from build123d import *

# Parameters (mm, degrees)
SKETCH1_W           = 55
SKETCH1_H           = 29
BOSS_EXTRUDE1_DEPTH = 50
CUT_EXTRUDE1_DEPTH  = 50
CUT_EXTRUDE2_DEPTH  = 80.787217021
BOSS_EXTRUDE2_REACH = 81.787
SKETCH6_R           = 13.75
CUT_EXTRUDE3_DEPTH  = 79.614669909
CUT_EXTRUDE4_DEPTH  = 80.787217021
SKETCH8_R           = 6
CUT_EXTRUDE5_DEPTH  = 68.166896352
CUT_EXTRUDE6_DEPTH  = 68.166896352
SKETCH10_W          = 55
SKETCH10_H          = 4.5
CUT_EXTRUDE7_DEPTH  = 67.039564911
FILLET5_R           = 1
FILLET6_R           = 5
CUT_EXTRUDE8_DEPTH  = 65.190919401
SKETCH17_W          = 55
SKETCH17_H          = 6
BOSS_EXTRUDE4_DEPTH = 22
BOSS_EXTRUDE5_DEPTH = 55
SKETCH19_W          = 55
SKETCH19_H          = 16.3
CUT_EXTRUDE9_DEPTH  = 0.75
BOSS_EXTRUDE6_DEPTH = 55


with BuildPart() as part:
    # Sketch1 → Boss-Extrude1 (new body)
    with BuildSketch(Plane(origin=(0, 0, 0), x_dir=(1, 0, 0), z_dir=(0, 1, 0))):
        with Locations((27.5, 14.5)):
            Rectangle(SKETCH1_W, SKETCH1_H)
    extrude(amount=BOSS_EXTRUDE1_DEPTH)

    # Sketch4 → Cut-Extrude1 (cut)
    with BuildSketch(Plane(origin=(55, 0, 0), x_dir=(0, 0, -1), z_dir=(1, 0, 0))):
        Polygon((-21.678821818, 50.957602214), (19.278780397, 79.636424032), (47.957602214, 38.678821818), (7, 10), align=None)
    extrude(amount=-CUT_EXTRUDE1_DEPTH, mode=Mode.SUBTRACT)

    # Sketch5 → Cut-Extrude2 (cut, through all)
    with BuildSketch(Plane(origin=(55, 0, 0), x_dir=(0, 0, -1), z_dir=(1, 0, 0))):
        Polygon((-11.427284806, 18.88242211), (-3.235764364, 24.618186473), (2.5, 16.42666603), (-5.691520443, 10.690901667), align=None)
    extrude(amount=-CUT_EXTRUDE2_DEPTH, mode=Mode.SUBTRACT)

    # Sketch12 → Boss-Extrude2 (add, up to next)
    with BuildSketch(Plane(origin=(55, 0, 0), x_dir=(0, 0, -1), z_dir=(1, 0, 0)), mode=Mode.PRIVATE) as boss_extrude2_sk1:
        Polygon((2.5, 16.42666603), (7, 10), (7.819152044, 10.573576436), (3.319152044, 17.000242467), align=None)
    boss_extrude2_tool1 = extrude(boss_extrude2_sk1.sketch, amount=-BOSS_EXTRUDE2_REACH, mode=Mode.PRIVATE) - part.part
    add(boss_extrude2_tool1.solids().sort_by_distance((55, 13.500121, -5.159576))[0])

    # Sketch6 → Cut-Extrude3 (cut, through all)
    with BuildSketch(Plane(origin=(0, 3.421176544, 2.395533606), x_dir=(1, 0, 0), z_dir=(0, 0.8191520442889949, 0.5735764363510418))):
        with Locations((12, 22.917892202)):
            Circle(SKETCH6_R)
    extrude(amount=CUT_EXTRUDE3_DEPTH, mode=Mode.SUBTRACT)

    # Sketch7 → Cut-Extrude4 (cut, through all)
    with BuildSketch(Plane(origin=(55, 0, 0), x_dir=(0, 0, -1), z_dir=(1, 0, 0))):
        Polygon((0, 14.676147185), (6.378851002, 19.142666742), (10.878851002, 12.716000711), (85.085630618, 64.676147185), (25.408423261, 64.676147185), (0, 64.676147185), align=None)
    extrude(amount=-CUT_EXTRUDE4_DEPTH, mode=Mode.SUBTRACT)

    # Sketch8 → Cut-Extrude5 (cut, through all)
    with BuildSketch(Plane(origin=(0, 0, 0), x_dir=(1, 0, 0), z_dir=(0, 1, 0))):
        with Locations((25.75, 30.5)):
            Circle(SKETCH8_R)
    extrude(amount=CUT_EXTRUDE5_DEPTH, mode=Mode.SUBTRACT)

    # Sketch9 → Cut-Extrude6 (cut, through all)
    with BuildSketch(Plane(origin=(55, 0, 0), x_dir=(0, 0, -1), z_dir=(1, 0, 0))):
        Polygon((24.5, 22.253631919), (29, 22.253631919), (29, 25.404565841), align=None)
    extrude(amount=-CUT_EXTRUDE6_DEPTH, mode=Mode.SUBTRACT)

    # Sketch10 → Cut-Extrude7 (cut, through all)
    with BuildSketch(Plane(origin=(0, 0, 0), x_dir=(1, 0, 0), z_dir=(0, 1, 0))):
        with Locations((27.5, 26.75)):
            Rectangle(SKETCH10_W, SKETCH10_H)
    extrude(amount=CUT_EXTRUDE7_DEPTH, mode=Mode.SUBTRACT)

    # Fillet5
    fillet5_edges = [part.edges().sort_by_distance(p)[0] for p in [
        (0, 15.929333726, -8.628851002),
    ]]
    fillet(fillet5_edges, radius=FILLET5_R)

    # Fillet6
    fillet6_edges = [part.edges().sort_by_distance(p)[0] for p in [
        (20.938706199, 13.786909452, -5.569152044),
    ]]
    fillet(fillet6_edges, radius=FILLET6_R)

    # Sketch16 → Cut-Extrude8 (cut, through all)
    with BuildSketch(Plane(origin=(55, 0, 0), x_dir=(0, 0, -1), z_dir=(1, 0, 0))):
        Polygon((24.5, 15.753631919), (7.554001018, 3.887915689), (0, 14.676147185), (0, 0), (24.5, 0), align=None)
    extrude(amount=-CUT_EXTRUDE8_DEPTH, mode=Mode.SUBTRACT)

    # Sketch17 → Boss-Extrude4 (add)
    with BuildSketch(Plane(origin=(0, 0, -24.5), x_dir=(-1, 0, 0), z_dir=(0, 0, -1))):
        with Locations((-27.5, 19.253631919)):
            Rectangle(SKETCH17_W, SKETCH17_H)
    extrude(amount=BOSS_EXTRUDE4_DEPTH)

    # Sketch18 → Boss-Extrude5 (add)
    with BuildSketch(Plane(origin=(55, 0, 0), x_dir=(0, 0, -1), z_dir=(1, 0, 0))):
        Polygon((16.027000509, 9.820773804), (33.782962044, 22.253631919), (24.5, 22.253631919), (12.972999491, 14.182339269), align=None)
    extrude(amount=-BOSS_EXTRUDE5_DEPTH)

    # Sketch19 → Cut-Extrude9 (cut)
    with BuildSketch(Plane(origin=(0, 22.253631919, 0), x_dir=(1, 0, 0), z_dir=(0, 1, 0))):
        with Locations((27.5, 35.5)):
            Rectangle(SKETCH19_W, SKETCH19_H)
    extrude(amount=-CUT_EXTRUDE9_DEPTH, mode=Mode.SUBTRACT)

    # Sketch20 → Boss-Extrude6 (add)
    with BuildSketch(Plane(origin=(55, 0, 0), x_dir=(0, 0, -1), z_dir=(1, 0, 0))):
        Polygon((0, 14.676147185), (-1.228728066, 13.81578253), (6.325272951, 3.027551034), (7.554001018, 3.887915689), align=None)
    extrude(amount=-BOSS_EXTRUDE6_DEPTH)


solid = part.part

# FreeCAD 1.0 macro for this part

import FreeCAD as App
import Part
import Sketcher
from FreeCAD import Vector
Q = App.Units.Quantity


def edges_at(feature, points):
    """Names of the edges that pass closest to the given points."""
    edges = feature.Shape.Edges
    near = lambda p: min(range(len(edges)), key=lambda i: edges[i].distToShape(Part.Vertex(*p))[0])
    return sorted({f"Edge{near(p) + 1}" for p in points})

doc = App.newDocument("Part")
body = doc.addObject("PartDesign::Body", "Body")

# Sketch on XZ plane
sketch1 = doc.addObject("Sketcher::SketchObject", "Sketch")
body.addObject(sketch1)
sketch1.AttachmentSupport = (doc.XZ_Plane, [""])
sketch1.MapMode = "FlatFace"
sketch1.addGeometry(Part.LineSegment(Vector(0, -29, 0), Vector(0, 0, 0)), False)
sketch1.addGeometry(Part.LineSegment(Vector(0, 0, 0), Vector(55, 0, 0)), False)
sketch1.addGeometry(Part.LineSegment(Vector(55, 0, 0), Vector(55, -29, 0)), False)
sketch1.addGeometry(Part.LineSegment(Vector(55, -29, 0), Vector(0, -29, 0)), False)
sketch1.addConstraint(Sketcher.Constraint("Coincident", 0, 2, 1, 1))
sketch1.addConstraint(Sketcher.Constraint("Coincident", 1, 2, 2, 1))
sketch1.addConstraint(Sketcher.Constraint("Coincident", 2, 2, 3, 1))
sketch1.addConstraint(Sketcher.Constraint("Coincident", 3, 2, 0, 1))
sketch1.addConstraint(Sketcher.Constraint("Vertical", 0))
sketch1.addConstraint(Sketcher.Constraint("Horizontal", 1))
sketch1.addConstraint(Sketcher.Constraint("Vertical", 2))
sketch1.addConstraint(Sketcher.Constraint("Horizontal", 3))
sketch1.addConstraint(Sketcher.Constraint("Coincident", 0, 2, -1, 1))
sketch1.addConstraint(Sketcher.Constraint("DistanceX", 1, 1, 1, 2, 55.0))
sketch1.addConstraint(Sketcher.Constraint("DistanceY", 0, 1, 0, 2, 29.0))
pad1 = doc.addObject("PartDesign::Pad", "Pad")
body.addObject(pad1)
pad1.Profile = sketch1
pad1.Length = 50
pad1.Reversed = True

# Sketch on YZ plane
sketch2 = doc.addObject("Sketcher::SketchObject", "Sketch001")
body.addObject(sketch2)
sketch2.AttachmentSupport = (doc.YZ_Plane, [""])
sketch2.MapMode = "FlatFace"
sketch2.AttachmentOffset = App.Placement(Vector(0, 0, 55), App.Rotation())
sketch2.addGeometry(Part.LineSegment(Vector(80, -19, 0), Vector(51, 22, 0)), False)
sketch2.addGeometry(Part.LineSegment(Vector(51, 22, 0), Vector(10, -7, 0)), False)
sketch2.addGeometry(Part.LineSegment(Vector(10, -7, 0), Vector(39, -48, 0)), False)
sketch2.addGeometry(Part.LineSegment(Vector(39, -48, 0), Vector(80, -19, 0)), False)
sketch2.addConstraint(Sketcher.Constraint("Coincident", 0, 2, 1, 1))
sketch2.addConstraint(Sketcher.Constraint("Coincident", 1, 2, 2, 1))
sketch2.addConstraint(Sketcher.Constraint("Coincident", 2, 2, 3, 1))
sketch2.addConstraint(Sketcher.Constraint("Coincident", 3, 2, 0, 1))
sketch2.addConstraint(Sketcher.Constraint("Perpendicular", 0, 1))
sketch2.addConstraint(Sketcher.Constraint("Perpendicular", 1, 2))
sketch2.addConstraint(Sketcher.Constraint("Perpendicular", 2, 3))
sketch2.addConstraint(Sketcher.Constraint("Equal", 0, 1))
sketch2.addConstraint(Sketcher.Constraint("Angle", 0, Q("125 deg")))
sketch2.addConstraint(Sketcher.Constraint("Distance", 0, 50.0))
sketch2.addConstraint(Sketcher.Constraint("DistanceX", -1, 1, 1, 2, 10.0))
sketch2.addConstraint(Sketcher.Constraint("DistanceY", 1, 2, -1, 1, 7.0))
pocket1 = doc.addObject("PartDesign::Pocket", "Pocket")
body.addObject(pocket1)
pocket1.Profile = sketch2
pocket1.Length = 50

# Sketch on YZ plane
sketch3 = doc.addObject("Sketcher::SketchObject", "Sketch002")
body.addObject(sketch3)
sketch3.AttachmentSupport = (doc.YZ_Plane, [""])
sketch3.MapMode = "FlatFace"
sketch3.AttachmentOffset = App.Placement(Vector(0, 0, 55), App.Rotation())
sketch3.addGeometry(Part.LineSegment(Vector(25, 3, 0), Vector(19, 11, 0)), False)
sketch3.addGeometry(Part.LineSegment(Vector(19, 11, 0), Vector(11, 6, 0)), False)
sketch3.addGeometry(Part.LineSegment(Vector(11, 6, 0), Vector(16, -2, 0)), False)
sketch3.addGeometry(Part.LineSegment(Vector(16, -2, 0), Vector(25, 3, 0)), False)
sketch3.addConstraint(Sketcher.Constraint("Coincident", 0, 2, 1, 1))
sketch3.addConstraint(Sketcher.Constraint("Coincident", 1, 2, 2, 1))
sketch3.addConstraint(Sketcher.Constraint("Coincident", 2, 2, 3, 1))
sketch3.addConstraint(Sketcher.Constraint("Coincident", 3, 2, 0, 1))
sketch3.addConstraint(Sketcher.Constraint("Perpendicular", 0, 1))
sketch3.addConstraint(Sketcher.Constraint("Perpendicular", 1, 2))
sketch3.addConstraint(Sketcher.Constraint("Perpendicular", 2, 3))
sketch3.addConstraint(Sketcher.Constraint("Equal", 0, 1))
sketch3.addConstraint(Sketcher.Constraint("Angle", 0, Q("125 deg")))
sketch3.addConstraint(Sketcher.Constraint("Distance", 0, 10.0))
sketch3.addConstraint(Sketcher.Constraint("DistanceY", 2, 2, -1, 1, 2.5))
sketch3.addConstraint(Sketcher.Constraint("DistanceX", -1, 1, 1, 2, 10.690902))
pocket2 = doc.addObject("PartDesign::Pocket", "Pocket001")
body.addObject(pocket2)
pocket2.Profile = sketch3
pocket2.Type = "ThroughAll"

# Sketch on YZ plane
sketch4 = doc.addObject("Sketcher::SketchObject", "Sketch003")
body.addObject(sketch4)
sketch4.AttachmentSupport = (doc.YZ_Plane, [""])
sketch4.MapMode = "FlatFace"
sketch4.AttachmentOffset = App.Placement(Vector(0, 0, 55), App.Rotation())
sketch4.addGeometry(Part.LineSegment(Vector(16.4, -2.5, 0), Vector(10, -7, 0)), False)
sketch4.addGeometry(Part.LineSegment(Vector(10, -7, 0), Vector(10.6, -7.8, 0)), False)
sketch4.addGeometry(Part.LineSegment(Vector(10.6, -7.8, 0), Vector(17, -3.3, 0)), False)
sketch4.addGeometry(Part.LineSegment(Vector(17, -3.3, 0), Vector(16.4, -2.5, 0)), False)
sketch4.addConstraint(Sketcher.Constraint("Coincident", 0, 2, 1, 1))
sketch4.addConstraint(Sketcher.Constraint("Coincident", 1, 2, 2, 1))
sketch4.addConstraint(Sketcher.Constraint("Coincident", 2, 2, 3, 1))
sketch4.addConstraint(Sketcher.Constraint("Coincident", 3, 2, 0, 1))
sketch4.addConstraint(Sketcher.Constraint("Perpendicular", 0, 1))
sketch4.addConstraint(Sketcher.Constraint("Perpendicular", 1, 2))
sketch4.addConstraint(Sketcher.Constraint("Perpendicular", 2, 3))
sketch4.addConstraint(Sketcher.Constraint("Angle", 0, Q("-145 deg")))
sketch4.addConstraint(Sketcher.Constraint("Distance", 1, 1.0))
sketch4.addConstraint(Sketcher.Constraint("DistanceX", -1, 1, 0, 2, 10.0))
sketch4.addConstraint(Sketcher.Constraint("DistanceY", 0, 2, -1, 1, 7.0))
sketch4.addConstraint(Sketcher.Constraint("DistanceY", 3, 2, -1, 1, 2.5))
pad2 = doc.addObject("PartDesign::Pad", "Pad001")
body.addObject(pad2)
pad2.Profile = sketch4
pad2.Type = "UpToFirst"
pad2.Reversed = True

# Sketch on an angled plane
sketch5 = doc.addObject("Sketcher::SketchObject", "Sketch004")
body.addObject(sketch5)
sketch5.Placement = App.Placement(Vector(0, 3.421177, 2.395534), App.Rotation(Vector(1, 0, 0), Vector(0, 0.573576436, -0.819152044), Vector(0, 0.819152044, 0.573576436), "ZXY"))
sketch5.addGeometry(Part.Circle(Vector(12, 23, 0), Vector(0, 0, 1), 14), False)
sketch5.addConstraint(Sketcher.Constraint("Diameter", 0, 27.5))
sketch5.addConstraint(Sketcher.Constraint("DistanceX", -1, 1, 0, 3, 12.0))
sketch5.addConstraint(Sketcher.Constraint("DistanceY", -1, 1, 0, 3, 22.917892))
pocket3 = doc.addObject("PartDesign::Pocket", "Pocket002")
body.addObject(pocket3)
pocket3.Profile = sketch5
pocket3.Type = "ThroughAll"
pocket3.Reversed = True

# Sketch on YZ plane
sketch6 = doc.addObject("Sketcher::SketchObject", "Sketch005")
body.addObject(sketch6)
sketch6.AttachmentSupport = (doc.YZ_Plane, [""])
sketch6.MapMode = "FlatFace"
sketch6.AttachmentOffset = App.Placement(Vector(0, 0, 55), App.Rotation())
sketch6.addGeometry(Part.LineSegment(Vector(15, 0, 0), Vector(19, -6, 0)), False)
sketch6.addGeometry(Part.LineSegment(Vector(19, -6, 0), Vector(13, -11, 0)), False)
sketch6.addGeometry(Part.LineSegment(Vector(13, -11, 0), Vector(65, -85, 0)), False)
sketch6.addGeometry(Part.LineSegment(Vector(65, -85, 0), Vector(65, 0, 0)), False)
sketch6.addGeometry(Part.LineSegment(Vector(65, 0, 0), Vector(15, 0, 0)), False)
sketch6.addConstraint(Sketcher.Constraint("Coincident", 0, 2, 1, 1))
sketch6.addConstraint(Sketcher.Constraint("Coincident", 1, 2, 2, 1))
sketch6.addConstraint(Sketcher.Constraint("Coincident", 2, 2, 3, 1))
sketch6.addConstraint(Sketcher.Constraint("Coincident", 3, 2, 4, 1))
sketch6.addConstraint(Sketcher.Constraint("Coincident", 4, 2, 0, 1))
sketch6.addConstraint(Sketcher.Constraint("Vertical", 3))
sketch6.addConstraint(Sketcher.Constraint("Horizontal", 4))
sketch6.addConstraint(Sketcher.Constraint("PointOnObject", 3, 2, -1))
sketch6.addConstraint(Sketcher.Constraint("Perpendicular", 0, 1))
sketch6.addConstraint(Sketcher.Constraint("Perpendicular", 1, 2))
sketch6.addConstraint(Sketcher.Constraint("DistanceX", 4, 2, 4, 1, 50.0))
sketch6.addConstraint(Sketcher.Constraint("Angle", 0, Q("-55 deg")))
sketch6.addConstraint(Sketcher.Constraint("DistanceY", 1, 2, 0, 2, 4.5))
sketch6.addConstraint(Sketcher.Constraint("DistanceX", -1, 1, 1, 2, 12.716001))
sketch6.addConstraint(Sketcher.Constraint("Distance", 0, 7.787139))
pocket4 = doc.addObject("PartDesign::Pocket", "Pocket003")
body.addObject(pocket4)
pocket4.Profile = sketch6
pocket4.Type = "ThroughAll"

# Sketch on XZ plane
sketch7 = doc.addObject("Sketcher::SketchObject", "Sketch006")
body.addObject(sketch7)
sketch7.AttachmentSupport = (doc.XZ_Plane, [""])
sketch7.MapMode = "FlatFace"
sketch7.addGeometry(Part.Circle(Vector(26, -30, 0), Vector(0, 0, 1), 6), False)
sketch7.addConstraint(Sketcher.Constraint("Diameter", 0, 12.0))
sketch7.addConstraint(Sketcher.Constraint("DistanceY", 0, 3, -1, 1, 30.5))
sketch7.addConstraint(Sketcher.Constraint("DistanceX", -1, 1, 0, 3, 25.75))
pocket5 = doc.addObject("PartDesign::Pocket", "Pocket004")
body.addObject(pocket5)
pocket5.Profile = sketch7
pocket5.Type = "ThroughAll"

# Sketch on YZ plane
sketch8 = doc.addObject("Sketcher::SketchObject", "Sketch007")
body.addObject(sketch8)
sketch8.AttachmentSupport = (doc.YZ_Plane, [""])
sketch8.MapMode = "FlatFace"
sketch8.AttachmentOffset = App.Placement(Vector(0, 0, 55), App.Rotation())
sketch8.addGeometry(Part.LineSegment(Vector(22.3, -24.5, 0), Vector(22.3, -29, 0)), False)
sketch8.addGeometry(Part.LineSegment(Vector(22.3, -29, 0), Vector(25.4, -29, 0)), False)
sketch8.addGeometry(Part.LineSegment(Vector(25.4, -29, 0), Vector(22.3, -24.5, 0)), False)
sketch8.addConstraint(Sketcher.Constraint("Coincident", 0, 2, 1, 1))
sketch8.addConstraint(Sketcher.Constraint("Coincident", 1, 2, 2, 1))
sketch8.addConstraint(Sketcher.Constraint("Coincident", 2, 2, 0, 1))
sketch8.addConstraint(Sketcher.Constraint("Vertical", 0))
sketch8.addConstraint(Sketcher.Constraint("Horizontal", 1))
sketch8.addConstraint(Sketcher.Constraint("Angle", 2, Q("125 deg")))
sketch8.addConstraint(Sketcher.Constraint("DistanceY", 0, 2, 0, 1, 4.5))
sketch8.addConstraint(Sketcher.Constraint("DistanceY", 0, 2, -1, 1, 29.0))
sketch8.addConstraint(Sketcher.Constraint("DistanceX", -1, 1, 0, 2, 22.253632))
pocket6 = doc.addObject("PartDesign::Pocket", "Pocket005")
body.addObject(pocket6)
pocket6.Profile = sketch8
pocket6.Type = "ThroughAll"

# Sketch on XZ plane
sketch9 = doc.addObject("Sketcher::SketchObject", "Sketch008")
body.addObject(sketch9)
sketch9.AttachmentSupport = (doc.XZ_Plane, [""])
sketch9.MapMode = "FlatFace"
sketch9.addGeometry(Part.LineSegment(Vector(0, -29, 0), Vector(0, -24.5, 0)), False)
sketch9.addGeometry(Part.LineSegment(Vector(0, -24.5, 0), Vector(55, -24.5, 0)), False)
sketch9.addGeometry(Part.LineSegment(Vector(55, -24.5, 0), Vector(55, -29, 0)), False)
sketch9.addGeometry(Part.LineSegment(Vector(55, -29, 0), Vector(0, -29, 0)), False)
sketch9.addConstraint(Sketcher.Constraint("Coincident", 0, 2, 1, 1))
sketch9.addConstraint(Sketcher.Constraint("Coincident", 1, 2, 2, 1))
sketch9.addConstraint(Sketcher.Constraint("Coincident", 2, 2, 3, 1))
sketch9.addConstraint(Sketcher.Constraint("Coincident", 3, 2, 0, 1))
sketch9.addConstraint(Sketcher.Constraint("Vertical", 0))
sketch9.addConstraint(Sketcher.Constraint("Horizontal", 1))
sketch9.addConstraint(Sketcher.Constraint("Vertical", 2))
sketch9.addConstraint(Sketcher.Constraint("Horizontal", 3))
sketch9.addConstraint(Sketcher.Constraint("PointOnObject", 0, 2, -2))
sketch9.addConstraint(Sketcher.Constraint("DistanceX", 1, 1, 1, 2, 55.0))
sketch9.addConstraint(Sketcher.Constraint("DistanceY", 0, 1, 0, 2, 4.5))
sketch9.addConstraint(Sketcher.Constraint("DistanceY", 2, 2, -1, 1, 29.0))
pocket7 = doc.addObject("PartDesign::Pocket", "Pocket006")
body.addObject(pocket7)
pocket7.Profile = sketch9
pocket7.Type = "ThroughAll"
doc.recompute()

fillet = doc.addObject("PartDesign::Fillet", "Fillet")
body.addObject(fillet)
fillet.Base = (pocket7, edges_at(pocket7, [(0, 15.929, -8.629)]))
fillet.Radius = 1
doc.recompute()

fillet2 = doc.addObject("PartDesign::Fillet", "Fillet001")
body.addObject(fillet2)
fillet2.Base = (fillet, edges_at(fillet, [(20.939, 13.787, -5.569)]))
fillet2.Radius = 5

# Sketch on YZ plane
sketch10 = doc.addObject("Sketcher::SketchObject", "Sketch009")
body.addObject(sketch10)
sketch10.AttachmentSupport = (doc.YZ_Plane, [""])
sketch10.MapMode = "FlatFace"
sketch10.AttachmentOffset = App.Placement(Vector(0, 0, 55), App.Rotation())
sketch10.addGeometry(Part.LineSegment(Vector(16, -24, 0), Vector(4, -8, 0)), False)
sketch10.addGeometry(Part.LineSegment(Vector(4, -8, 0), Vector(15, 0, 0)), False)
sketch10.addGeometry(Part.LineSegment(Vector(15, 0, 0), Vector(0, 0, 0)), False)
sketch10.addGeometry(Part.LineSegment(Vector(0, 0, 0), Vector(0, -24, 0)), False)
sketch10.addGeometry(Part.LineSegment(Vector(0, -24, 0), Vector(16, -24, 0)), False)
sketch10.addConstraint(Sketcher.Constraint("Coincident", 0, 2, 1, 1))
sketch10.addConstraint(Sketcher.Constraint("Coincident", 1, 2, 2, 1))
sketch10.addConstraint(Sketcher.Constraint("Coincident", 2, 2, 3, 1))
sketch10.addConstraint(Sketcher.Constraint("Coincident", 3, 2, 4, 1))
sketch10.addConstraint(Sketcher.Constraint("Coincident", 4, 2, 0, 1))
sketch10.addConstraint(Sketcher.Constraint("Horizontal", 2))
sketch10.addConstraint(Sketcher.Constraint("Vertical", 3))
sketch10.addConstraint(Sketcher.Constraint("Horizontal", 4))
sketch10.addConstraint(Sketcher.Constraint("Coincident", 2, 2, -1, 1))
sketch10.addConstraint(Sketcher.Constraint("Perpendicular", 0, 1))
sketch10.addConstraint(Sketcher.Constraint("Angle", 0, Q("125 deg")))
sketch10.addConstraint(Sketcher.Constraint("DistanceY", 3, 2, 3, 1, 24.5))
sketch10.addConstraint(Sketcher.Constraint("Distance", 1, 13.169999))
sketch10.addConstraint(Sketcher.Constraint("DistanceX", 4, 1, 4, 2, 15.753632))
pocket8 = doc.addObject("PartDesign::Pocket", "Pocket007")
body.addObject(pocket8)
pocket8.Profile = sketch10
pocket8.Type = "ThroughAll"

# Sketch on XY plane
sketch11 = doc.addObject("Sketcher::SketchObject", "Sketch010")
body.addObject(sketch11)
sketch11.AttachmentSupport = (doc.XY_Plane, [""])
sketch11.MapMode = "FlatFace"
sketch11.AttachmentOffset = App.Placement(Vector(0, 0, -24.5), App.Rotation())
sketch11.addGeometry(Part.LineSegment(Vector(55, 22, 0), Vector(55, 16, 0)), False)
sketch11.addGeometry(Part.LineSegment(Vector(55, 16, 0), Vector(0, 16, 0)), False)
sketch11.addGeometry(Part.LineSegment(Vector(0, 16, 0), Vector(0, 22, 0)), False)
sketch11.addGeometry(Part.LineSegment(Vector(0, 22, 0), Vector(55, 22, 0)), False)
sketch11.addConstraint(Sketcher.Constraint("Coincident", 0, 2, 1, 1))
sketch11.addConstraint(Sketcher.Constraint("Coincident", 1, 2, 2, 1))
sketch11.addConstraint(Sketcher.Constraint("Coincident", 2, 2, 3, 1))
sketch11.addConstraint(Sketcher.Constraint("Coincident", 3, 2, 0, 1))
sketch11.addConstraint(Sketcher.Constraint("Vertical", 0))
sketch11.addConstraint(Sketcher.Constraint("Horizontal", 1))
sketch11.addConstraint(Sketcher.Constraint("Vertical", 2))
sketch11.addConstraint(Sketcher.Constraint("Horizontal", 3))
sketch11.addConstraint(Sketcher.Constraint("PointOnObject", 1, 2, -2))
sketch11.addConstraint(Sketcher.Constraint("DistanceX", 1, 2, 1, 1, 55.0))
sketch11.addConstraint(Sketcher.Constraint("DistanceY", 0, 2, 0, 1, 6.0))
sketch11.addConstraint(Sketcher.Constraint("DistanceY", -1, 1, 0, 2, 16.253632))
pad3 = doc.addObject("PartDesign::Pad", "Pad002")
body.addObject(pad3)
pad3.Profile = sketch11
pad3.Length = 22
pad3.Reversed = True

# Sketch on YZ plane
sketch12 = doc.addObject("Sketcher::SketchObject", "Sketch011")
body.addObject(sketch12)
sketch12.AttachmentSupport = (doc.YZ_Plane, [""])
sketch12.MapMode = "FlatFace"
sketch12.AttachmentOffset = App.Placement(Vector(0, 0, 55), App.Rotation())
sketch12.addGeometry(Part.LineSegment(Vector(10, -16, 0), Vector(22, -34, 0)), False)
sketch12.addGeometry(Part.LineSegment(Vector(22, -34, 0), Vector(22, -24, 0)), False)
sketch12.addGeometry(Part.LineSegment(Vector(22, -24, 0), Vector(14, -13, 0)), False)
sketch12.addGeometry(Part.LineSegment(Vector(14, -13, 0), Vector(10, -16, 0)), False)
sketch12.addConstraint(Sketcher.Constraint("Coincident", 0, 2, 1, 1))
sketch12.addConstraint(Sketcher.Constraint("Coincident", 1, 2, 2, 1))
sketch12.addConstraint(Sketcher.Constraint("Coincident", 2, 2, 3, 1))
sketch12.addConstraint(Sketcher.Constraint("Coincident", 3, 2, 0, 1))
sketch12.addConstraint(Sketcher.Constraint("Vertical", 1))
sketch12.addConstraint(Sketcher.Constraint("Parallel", 0, 2))
sketch12.addConstraint(Sketcher.Constraint("Perpendicular", 2, 3))
sketch12.addConstraint(Sketcher.Constraint("Angle", 0, Q("-55 deg")))
sketch12.addConstraint(Sketcher.Constraint("DistanceY", 1, 2, -1, 1, 24.5))
sketch12.addConstraint(Sketcher.Constraint("DistanceY", 2, 2, -1, 1, 12.972999))
sketch12.addConstraint(Sketcher.Constraint("DistanceY", 3, 2, -1, 1, 16.027001))
sketch12.addConstraint(Sketcher.Constraint("DistanceX", -1, 1, 0, 2, 22.253632))
pad4 = doc.addObject("PartDesign::Pad", "Pad003")
body.addObject(pad4)
pad4.Profile = sketch12
pad4.Length = 55
pad4.Reversed = True

# Sketch on XZ plane
sketch13 = doc.addObject("Sketcher::SketchObject", "Sketch012")
body.addObject(sketch13)
sketch13.AttachmentSupport = (doc.XZ_Plane, [""])
sketch13.MapMode = "FlatFace"
sketch13.AttachmentOffset = App.Placement(Vector(0, 0, -22.253632), App.Rotation())
sketch13.addGeometry(Part.LineSegment(Vector(0, -44, 0), Vector(0, -27, 0)), False)
sketch13.addGeometry(Part.LineSegment(Vector(0, -27, 0), Vector(55, -27, 0)), False)
sketch13.addGeometry(Part.LineSegment(Vector(55, -27, 0), Vector(55, -44, 0)), False)
sketch13.addGeometry(Part.LineSegment(Vector(55, -44, 0), Vector(0, -44, 0)), False)
sketch13.addConstraint(Sketcher.Constraint("Coincident", 0, 2, 1, 1))
sketch13.addConstraint(Sketcher.Constraint("Coincident", 1, 2, 2, 1))
sketch13.addConstraint(Sketcher.Constraint("Coincident", 2, 2, 3, 1))
sketch13.addConstraint(Sketcher.Constraint("Coincident", 3, 2, 0, 1))
sketch13.addConstraint(Sketcher.Constraint("Vertical", 0))
sketch13.addConstraint(Sketcher.Constraint("Horizontal", 1))
sketch13.addConstraint(Sketcher.Constraint("Vertical", 2))
sketch13.addConstraint(Sketcher.Constraint("Horizontal", 3))
sketch13.addConstraint(Sketcher.Constraint("PointOnObject", 0, 2, -2))
sketch13.addConstraint(Sketcher.Constraint("DistanceX", 1, 1, 1, 2, 55.0))
sketch13.addConstraint(Sketcher.Constraint("DistanceY", 0, 1, 0, 2, 16.3))
sketch13.addConstraint(Sketcher.Constraint("DistanceY", 0, 2, -1, 1, 27.35))
pocket9 = doc.addObject("PartDesign::Pocket", "Pocket008")
body.addObject(pocket9)
pocket9.Profile = sketch13
pocket9.Length = 0.75
pocket9.Reversed = True

# Sketch on YZ plane
sketch14 = doc.addObject("Sketcher::SketchObject", "Sketch013")
body.addObject(sketch14)
sketch14.AttachmentSupport = (doc.YZ_Plane, [""])
sketch14.MapMode = "FlatFace"
sketch14.AttachmentOffset = App.Placement(Vector(0, 0, 55), App.Rotation())
sketch14.addGeometry(Part.LineSegment(Vector(14.7, 0, 0), Vector(13.8, 1.2, 0)), False)
sketch14.addGeometry(Part.LineSegment(Vector(13.8, 1.2, 0), Vector(3, -6.3, 0)), False)
sketch14.addGeometry(Part.LineSegment(Vector(3, -6.3, 0), Vector(3.9, -7.6, 0)), False)
sketch14.addGeometry(Part.LineSegment(Vector(3.9, -7.6, 0), Vector(14.7, 0, 0)), False)
sketch14.addConstraint(Sketcher.Constraint("Coincident", 0, 2, 1, 1))
sketch14.addConstraint(Sketcher.Constraint("Coincident", 1, 2, 2, 1))
sketch14.addConstraint(Sketcher.Constraint("Coincident", 2, 2, 3, 1))
sketch14.addConstraint(Sketcher.Constraint("Coincident", 3, 2, 0, 1))
sketch14.addConstraint(Sketcher.Constraint("PointOnObject", 3, 2, -1))
sketch14.addConstraint(Sketcher.Constraint("Perpendicular", 0, 1))
sketch14.addConstraint(Sketcher.Constraint("Perpendicular", 1, 2))
sketch14.addConstraint(Sketcher.Constraint("Perpendicular", 2, 3))
sketch14.addConstraint(Sketcher.Constraint("Angle", 0, Q("125 deg")))
sketch14.addConstraint(Sketcher.Constraint("Distance", 0, 1.5))
sketch14.addConstraint(Sketcher.Constraint("Distance", 1, 13.169999))
sketch14.addConstraint(Sketcher.Constraint("DistanceX", -1, 1, 1, 2, 3.027551))
pad5 = doc.addObject("PartDesign::Pad", "Pad004")
body.addObject(pad5)
pad5.Profile = sketch14
pad5.Length = 55
pad5.Reversed = True

doc.recompute()
